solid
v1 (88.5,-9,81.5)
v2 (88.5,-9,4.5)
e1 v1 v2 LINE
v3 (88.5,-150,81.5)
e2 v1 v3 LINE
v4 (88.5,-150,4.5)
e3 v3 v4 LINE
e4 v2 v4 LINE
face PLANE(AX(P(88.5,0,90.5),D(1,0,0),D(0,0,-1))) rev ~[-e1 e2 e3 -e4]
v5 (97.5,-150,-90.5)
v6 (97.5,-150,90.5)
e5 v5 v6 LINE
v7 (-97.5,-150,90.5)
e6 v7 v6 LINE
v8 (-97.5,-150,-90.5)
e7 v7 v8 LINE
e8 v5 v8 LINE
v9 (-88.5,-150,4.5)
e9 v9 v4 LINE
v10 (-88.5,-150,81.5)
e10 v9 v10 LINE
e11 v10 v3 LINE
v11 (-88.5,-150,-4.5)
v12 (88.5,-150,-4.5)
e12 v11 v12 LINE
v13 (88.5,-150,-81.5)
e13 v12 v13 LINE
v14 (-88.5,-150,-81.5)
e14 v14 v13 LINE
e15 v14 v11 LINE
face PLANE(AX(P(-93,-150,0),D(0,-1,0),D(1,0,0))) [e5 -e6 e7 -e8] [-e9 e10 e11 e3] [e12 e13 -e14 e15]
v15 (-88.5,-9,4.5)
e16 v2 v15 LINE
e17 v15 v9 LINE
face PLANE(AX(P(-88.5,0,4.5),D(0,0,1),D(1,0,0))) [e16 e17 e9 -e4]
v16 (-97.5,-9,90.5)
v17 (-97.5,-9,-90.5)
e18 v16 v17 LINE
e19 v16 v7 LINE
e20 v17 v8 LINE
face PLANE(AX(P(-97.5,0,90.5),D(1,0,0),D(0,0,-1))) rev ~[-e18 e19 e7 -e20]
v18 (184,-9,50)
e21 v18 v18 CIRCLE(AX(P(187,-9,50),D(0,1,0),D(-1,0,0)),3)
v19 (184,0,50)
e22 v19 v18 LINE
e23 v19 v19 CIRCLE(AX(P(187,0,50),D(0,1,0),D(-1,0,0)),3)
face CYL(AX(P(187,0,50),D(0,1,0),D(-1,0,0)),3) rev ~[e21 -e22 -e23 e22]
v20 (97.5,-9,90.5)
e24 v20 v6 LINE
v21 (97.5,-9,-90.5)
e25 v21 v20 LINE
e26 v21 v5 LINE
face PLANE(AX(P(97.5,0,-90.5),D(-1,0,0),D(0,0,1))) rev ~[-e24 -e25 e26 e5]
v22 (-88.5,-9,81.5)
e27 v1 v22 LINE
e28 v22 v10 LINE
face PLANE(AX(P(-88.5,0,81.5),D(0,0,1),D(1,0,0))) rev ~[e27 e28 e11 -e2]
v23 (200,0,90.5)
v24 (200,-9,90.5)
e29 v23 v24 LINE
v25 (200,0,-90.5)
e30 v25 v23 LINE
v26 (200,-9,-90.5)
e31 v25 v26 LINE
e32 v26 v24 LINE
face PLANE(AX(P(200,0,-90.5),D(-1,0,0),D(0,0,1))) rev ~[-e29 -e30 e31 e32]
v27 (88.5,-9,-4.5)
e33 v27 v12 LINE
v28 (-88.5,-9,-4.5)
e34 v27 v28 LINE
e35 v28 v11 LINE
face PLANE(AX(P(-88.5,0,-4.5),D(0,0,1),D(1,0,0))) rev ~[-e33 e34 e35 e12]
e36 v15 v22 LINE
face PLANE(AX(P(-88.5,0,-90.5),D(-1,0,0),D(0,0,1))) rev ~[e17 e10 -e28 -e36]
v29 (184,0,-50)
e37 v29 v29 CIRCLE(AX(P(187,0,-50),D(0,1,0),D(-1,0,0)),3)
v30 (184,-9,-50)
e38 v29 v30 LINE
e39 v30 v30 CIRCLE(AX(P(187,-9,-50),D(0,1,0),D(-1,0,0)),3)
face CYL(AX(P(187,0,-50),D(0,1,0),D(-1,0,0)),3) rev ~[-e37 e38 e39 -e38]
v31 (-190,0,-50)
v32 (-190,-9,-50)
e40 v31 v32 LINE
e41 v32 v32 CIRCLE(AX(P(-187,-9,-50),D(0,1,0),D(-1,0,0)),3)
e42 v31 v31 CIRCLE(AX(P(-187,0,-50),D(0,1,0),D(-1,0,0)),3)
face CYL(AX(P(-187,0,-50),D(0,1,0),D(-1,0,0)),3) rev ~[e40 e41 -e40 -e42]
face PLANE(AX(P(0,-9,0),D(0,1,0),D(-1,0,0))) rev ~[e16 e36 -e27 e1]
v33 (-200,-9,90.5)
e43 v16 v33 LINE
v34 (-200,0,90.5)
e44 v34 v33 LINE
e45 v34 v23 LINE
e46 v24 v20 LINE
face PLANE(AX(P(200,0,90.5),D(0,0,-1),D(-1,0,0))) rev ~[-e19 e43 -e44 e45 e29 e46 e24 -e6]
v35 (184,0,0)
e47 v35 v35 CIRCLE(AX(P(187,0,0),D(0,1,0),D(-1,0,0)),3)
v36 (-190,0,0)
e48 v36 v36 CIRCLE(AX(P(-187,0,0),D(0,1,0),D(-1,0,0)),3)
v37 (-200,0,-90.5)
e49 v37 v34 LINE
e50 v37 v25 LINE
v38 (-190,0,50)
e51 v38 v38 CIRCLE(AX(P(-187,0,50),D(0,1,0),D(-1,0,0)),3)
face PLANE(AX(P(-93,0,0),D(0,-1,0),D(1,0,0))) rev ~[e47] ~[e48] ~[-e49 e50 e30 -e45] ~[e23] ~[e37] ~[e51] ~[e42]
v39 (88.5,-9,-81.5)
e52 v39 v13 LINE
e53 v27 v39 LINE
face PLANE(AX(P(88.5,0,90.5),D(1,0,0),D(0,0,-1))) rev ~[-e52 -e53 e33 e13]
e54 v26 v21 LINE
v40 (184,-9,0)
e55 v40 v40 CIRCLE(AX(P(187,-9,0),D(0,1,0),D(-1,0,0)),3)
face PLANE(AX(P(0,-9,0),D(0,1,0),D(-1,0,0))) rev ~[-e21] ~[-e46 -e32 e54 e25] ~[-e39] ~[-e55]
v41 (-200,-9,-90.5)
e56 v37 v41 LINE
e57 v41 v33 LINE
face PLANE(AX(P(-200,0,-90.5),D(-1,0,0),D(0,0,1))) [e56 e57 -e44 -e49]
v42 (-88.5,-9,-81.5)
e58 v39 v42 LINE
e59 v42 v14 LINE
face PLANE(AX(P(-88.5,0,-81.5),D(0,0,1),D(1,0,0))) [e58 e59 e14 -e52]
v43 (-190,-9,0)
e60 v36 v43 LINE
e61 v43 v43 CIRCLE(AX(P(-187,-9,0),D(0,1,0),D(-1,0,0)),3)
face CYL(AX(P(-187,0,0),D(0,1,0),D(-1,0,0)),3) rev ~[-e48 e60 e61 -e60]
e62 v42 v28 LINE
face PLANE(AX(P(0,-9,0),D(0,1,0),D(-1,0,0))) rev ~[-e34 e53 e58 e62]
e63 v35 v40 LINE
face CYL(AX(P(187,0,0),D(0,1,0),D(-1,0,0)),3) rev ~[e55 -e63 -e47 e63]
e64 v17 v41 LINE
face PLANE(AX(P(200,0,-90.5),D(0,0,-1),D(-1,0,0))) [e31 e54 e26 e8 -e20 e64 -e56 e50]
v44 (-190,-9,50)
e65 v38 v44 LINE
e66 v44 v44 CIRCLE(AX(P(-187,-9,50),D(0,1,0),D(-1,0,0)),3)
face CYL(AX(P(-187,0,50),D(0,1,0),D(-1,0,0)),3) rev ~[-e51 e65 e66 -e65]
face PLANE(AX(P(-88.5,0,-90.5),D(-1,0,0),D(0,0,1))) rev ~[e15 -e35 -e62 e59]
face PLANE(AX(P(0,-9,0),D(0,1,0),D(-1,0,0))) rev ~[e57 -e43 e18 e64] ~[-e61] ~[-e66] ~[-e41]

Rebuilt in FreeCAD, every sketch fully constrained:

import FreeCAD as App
import Part
import Sketcher

V = App.Vector

doc = App.newDocument("Part")
body = doc.addObject("PartDesign::Body", "Body")
body.AllowCompound = True

# Sketch on XZ plane
sketch1 = doc.addObject("Sketcher::SketchObject", "Sketch")
body.addObject(sketch1)
sketch1.AttachmentSupport = (doc.XZ_Plane, [""])
sketch1.MapMode = "FlatFace"
sketch1.addGeometry([
    Part.LineSegment(V(-88, 4, 0), V(-88, -4, 0)),  # 0
    Part.LineSegment(V(-88, -4, 0), V(88, -4, 0)),  # 1
    Part.LineSegment(V(88, -4, 0), V(88, 4, 0)),  # 2
    Part.LineSegment(V(88, 4, 0), V(-88, 4, 0)),  # 3
    Part.LineSegment(V(-88, -82, 0), V(-88, -90, 0)),  # 4
    Part.LineSegment(V(-88, -90, 0), V(88, -90, 0)),  # 5
    Part.LineSegment(V(88, -90, 0), V(88, -82, 0)),  # 6
    Part.LineSegment(V(88, -82, 0), V(-88, -82, 0)),  # 7
    Part.LineSegment(V(-88, 90, 0), V(-88, 82, 0)),  # 8
    Part.LineSegment(V(-88, 82, 0), V(88, 82, 0)),  # 9
    Part.LineSegment(V(88, 82, 0), V(88, 90, 0)),  # 10
    Part.LineSegment(V(88, 90, 0), V(-88, 90, 0)),  # 11
], False)
sketch1.addConstraint([
    Sketcher.Constraint("Coincident", 0, 2, 1, 1),
    Sketcher.Constraint("Coincident", 1, 2, 2, 1),
    Sketcher.Constraint("Coincident", 2, 2, 3, 1),
    Sketcher.Constraint("Coincident", 3, 2, 0, 1),
    Sketcher.Constraint("Coincident", 4, 2, 5, 1),
    Sketcher.Constraint("Coincident", 5, 2, 6, 1),
    Sketcher.Constraint("Coincident", 6, 2, 7, 1),
    Sketcher.Constraint("Coincident", 7, 2, 4, 1),
    Sketcher.Constraint("Coincident", 8, 2, 9, 1),
    Sketcher.Constraint("Coincident", 9, 2, 10, 1),
    Sketcher.Constraint("Coincident", 10, 2, 11, 1),
    Sketcher.Constraint("Coincident", 11, 2, 8, 1),
    Sketcher.Constraint("Vertical", 0),
    Sketcher.Constraint("Horizontal", 1),
    Sketcher.Constraint("Vertical", 2),
    Sketcher.Constraint("Horizontal", 3),
    Sketcher.Constraint("Vertical", 4),
    Sketcher.Constraint("Horizontal", 5),
    Sketcher.Constraint("Vertical", 6),
    Sketcher.Constraint("Horizontal", 7),
    Sketcher.Constraint("Vertical", 8),
    Sketcher.Constraint("Horizontal", 9),
    Sketcher.Constraint("Vertical", 10),
    Sketcher.Constraint("Horizontal", 11),
    Sketcher.Constraint("Symmetric", 0, 2, 2, 2, -1, 1),
    Sketcher.Constraint("Symmetric", 6, 2, 8, 2, -1, 1),
    Sketcher.Constraint("Symmetric", 4, 2, 10, 2, -1, 1),
    Sketcher.Constraint("Vertical", 3, 2, 4, 2),
    Sketcher.Constraint("Vertical", 2, 2, 5, 2),
    Sketcher.Constraint("Equal", 2, 4),
    Sketcher.Constraint("DistanceX", 1, 1, 1, 2, 177.0),
    Sketcher.Constraint("DistanceY", 0, 2, 0, 1, 9.0),
    Sketcher.Constraint("DistanceY", 4, 2, 0, 2, 86.0),
])
pad1 = doc.addObject("PartDesign::Pad", "Pad")
body.addObject(pad1)
pad1.Profile = sketch1
pad1.Length = 150

# Sketch on XZ plane
sketch2 = doc.addObject("Sketcher::SketchObject", "Sketch001")
body.addObject(sketch2)
sketch2.AttachmentSupport = (doc.XZ_Plane, [""])
sketch2.MapMode = "FlatFace"
sketch2.addGeometry([
    Part.LineSegment(V(200, 90.5, 0), V(200, -90.5, 0)),  # 0
    Part.LineSegment(V(200, -90.5, 0), V(-200, -90.5, 0)),  # 1
    Part.LineSegment(V(-200, -90.5, 0), V(-200, 90.5, 0)),  # 2
    Part.LineSegment(V(-200, 90.5, 0), V(200, 90.5, 0)),  # 3
    Part.Circle(V(187, -50, 0), V(0, 0, 1), 3),  # 4
    Part.Circle(V(-187, -50, 0), V(0, 0, 1), 3),  # 5
    Part.Circle(V(187, 0, 0), V(0, 0, 1), 3),  # 6
    Part.Circle(V(187, 50, 0), V(0, 0, 1), 3),  # 7
    Part.Circle(V(-187, 0, 0), V(0, 0, 1), 3),  # 8
    Part.Circle(V(-187, 50, 0), V(0, 0, 1), 3),  # 9
], False)
sketch2.addConstraint([
    Sketcher.Constraint("Coincident", 0, 2, 1, 1),
    Sketcher.Constraint("Coincident", 1, 2, 2, 1),
    Sketcher.Constraint("Coincident", 2, 2, 3, 1),
    Sketcher.Constraint("Coincident", 3, 2, 0, 1),
    Sketcher.Constraint("Vertical", 0),
    Sketcher.Constraint("Horizontal", 1),
    Sketcher.Constraint("Vertical", 2),
    Sketcher.Constraint("Horizontal", 3),
    Sketcher.Constraint("Equal", 4, 5),
    Sketcher.Constraint("Equal", 5, 6),
    Sketcher.Constraint("Equal", 6, 7),
    Sketcher.Constraint("Equal", 7, 8),
    Sketcher.Constraint("Equal", 8, 9),
    Sketcher.Constraint("Symmetric", 5, 3, 7, 3, -1, 1),
    Sketcher.Constraint("Symmetric", 6, 3, 8, 3, -1, 1),
    Sketcher.Constraint("Symmetric", 4, 3, 9, 3, -1, 1),
    Sketcher.Constraint("Symmetric", 0, 2, 2, 2, -1, 1),
    Sketcher.Constraint("Symmetric", 4, 3, 5, 3, -2),
    Sketcher.Constraint("PointOnObject", 6, 3, -1),
    Sketcher.Constraint("Vertical", 4, 3, 6, 3),
    Sketcher.Constraint("Diameter", 4, 6.0),
    Sketcher.Constraint("DistanceX", 1, 2, 1, 1, 400.0),
    Sketcher.Constraint("DistanceY", 0, 2, 0, 1, 181.0),
    Sketcher.Constraint("DistanceX", -1, 1, 4, 3, 187.0),
    Sketcher.Constraint("DistanceY", 4, 3, -1, 1, 50.0),
])
pad2 = doc.addObject("PartDesign::Pad", "Pad001")
body.addObject(pad2)
pad2.Profile = sketch2
pad2.Length = 9

# Sketch on XZ plane
sketch3 = doc.addObject("Sketcher::SketchObject", "Sketch002")
body.addObject(sketch3)
sketch3.AttachmentSupport = (doc.XZ_Plane, [""])
sketch3.MapMode = "FlatFace"
sketch3.addGeometry([
    Part.LineSegment(V(-88, 90, 0), V(-98, 90, 0)),  # 0
    Part.LineSegment(V(-98, 90, 0), V(-98, -90, 0)),  # 1
    Part.LineSegment(V(-98, -90, 0), V(-88, -90, 0)),  # 2
    Part.LineSegment(V(-88, -90, 0), V(-88, 90, 0)),  # 3
    Part.LineSegment(V(88, -90, 0), V(98, -90, 0)),  # 4
    Part.LineSegment(V(98, -90, 0), V(98, 90, 0)),  # 5
    Part.LineSegment(V(98, 90, 0), V(88, 90, 0)),  # 6
    Part.LineSegment(V(88, 90, 0), V(88, -90, 0)),  # 7
], False)
sketch3.addConstraint([
    Sketcher.Constraint("Coincident", 0, 2, 1, 1),
    Sketcher.Constraint("Coincident", 1, 2, 2, 1),
    Sketcher.Constraint("Coincident", 2, 2, 3, 1),
    Sketcher.Constraint("Coincident", 3, 2, 0, 1),
    Sketcher.Constraint("Coincident", 4, 2, 5, 1),
    Sketcher.Constraint("Coincident", 5, 2, 6, 1),
    Sketcher.Constraint("Coincident", 6, 2, 7, 1),
    Sketcher.Constraint("Coincident", 7, 2, 4, 1),
    Sketcher.Constraint("Horizontal", 0),
    Sketcher.Constraint("Vertical", 1),
    Sketcher.Constraint("Horizontal", 2),
    Sketcher.Constraint("Vertical", 3),
    Sketcher.Constraint("Horizontal", 4),
    Sketcher.Constraint("Vertical", 5),
    Sketcher.Constraint("Horizontal", 6),
    Sketcher.Constraint("Vertical", 7),
    Sketcher.Constraint("Symmetric", 0, 2, 4, 2, -1, 1),
    Sketcher.Constraint("Symmetric", 2, 2, 6, 2, -1, 1),
    Sketcher.Constraint("Horizontal", 2, 2, 4, 2),
    Sketcher.Constraint("DistanceX", 0, 2, 0, 1, 9.0),
    Sketcher.Constraint("DistanceY", 1, 2, 1, 1, 181.0),
    Sketcher.Constraint("DistanceX", 2, 2, 4, 2, 186.0),
])
pad3 = doc.addObject("PartDesign::Pad", "Pad002")
body.addObject(pad3)
pad3.Profile = sketch3
pad3.Length = 150

doc.recompute()
